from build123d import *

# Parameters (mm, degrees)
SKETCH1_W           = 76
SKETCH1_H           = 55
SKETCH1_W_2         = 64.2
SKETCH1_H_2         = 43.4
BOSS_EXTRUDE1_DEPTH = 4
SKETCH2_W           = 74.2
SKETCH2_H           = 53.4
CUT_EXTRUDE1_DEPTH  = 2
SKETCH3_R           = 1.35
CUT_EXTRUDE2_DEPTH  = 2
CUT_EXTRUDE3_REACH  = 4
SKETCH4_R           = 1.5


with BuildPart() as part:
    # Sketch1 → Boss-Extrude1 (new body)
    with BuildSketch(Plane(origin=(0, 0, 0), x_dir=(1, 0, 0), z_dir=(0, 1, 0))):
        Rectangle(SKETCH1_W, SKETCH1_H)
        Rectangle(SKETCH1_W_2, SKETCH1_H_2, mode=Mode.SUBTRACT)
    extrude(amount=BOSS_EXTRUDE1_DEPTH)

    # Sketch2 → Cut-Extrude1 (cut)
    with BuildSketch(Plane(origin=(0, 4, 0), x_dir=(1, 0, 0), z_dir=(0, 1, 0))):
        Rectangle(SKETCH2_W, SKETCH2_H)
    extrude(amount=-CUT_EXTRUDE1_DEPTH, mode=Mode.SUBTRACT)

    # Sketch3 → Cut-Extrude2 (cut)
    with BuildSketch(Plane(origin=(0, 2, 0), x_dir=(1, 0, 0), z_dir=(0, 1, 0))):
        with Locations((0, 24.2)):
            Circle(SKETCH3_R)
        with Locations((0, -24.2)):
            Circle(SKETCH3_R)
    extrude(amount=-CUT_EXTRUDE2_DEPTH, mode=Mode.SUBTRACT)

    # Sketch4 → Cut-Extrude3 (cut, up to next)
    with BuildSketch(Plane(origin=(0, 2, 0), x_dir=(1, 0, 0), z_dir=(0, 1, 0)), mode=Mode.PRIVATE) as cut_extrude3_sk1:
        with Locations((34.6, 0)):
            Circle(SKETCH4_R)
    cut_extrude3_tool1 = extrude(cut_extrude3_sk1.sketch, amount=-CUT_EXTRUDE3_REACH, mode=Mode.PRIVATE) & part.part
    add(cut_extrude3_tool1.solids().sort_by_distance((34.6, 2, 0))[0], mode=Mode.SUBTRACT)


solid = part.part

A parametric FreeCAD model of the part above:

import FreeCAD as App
import Part
import Sketcher

V = App.Vector


def add_polygon(sketch, points):
    """Adds a closed chain of lines whose ends are joined by coincident constraints."""
    first, n = sketch.GeometryCount, len(points)
    for a, b in zip(points, points[1:] + points[:1]):
        sketch.addGeometry(Part.LineSegment(App.Vector(*a, 0), App.Vector(*b, 0)), False)
    for i in range(n):
        sketch.addConstraint(Sketcher.Constraint("Coincident", first + i, 2, first + (i + 1) % n, 1))

doc = App.newDocument("Part")
body = doc.addObject("PartDesign::Body", "Body")

sketch1 = body.newObject("Sketcher::SketchObject", "Sketch")
sketch1.AttachmentSupport = (doc.getObject("XZ_Plane"), [""])
sketch1.MapMode = "FlatFace"
add_polygon(sketch1, [(-38, -28), (-38, 28), (38, 28), (38, -28)])
add_polygon(sketch1, [(32, 22), (-32, 22), (-32, -22), (32, -22)])
sketch1.addConstraint([
    Sketcher.Constraint("Vertical", 0),
    Sketcher.Constraint("Horizontal", 1),
    Sketcher.Constraint("Vertical", 2),
    Sketcher.Constraint("Horizontal", 3),
    Sketcher.Constraint("Horizontal", 4),
    Sketcher.Constraint("Vertical", 5),
    Sketcher.Constraint("Horizontal", 6),
    Sketcher.Constraint("Vertical", 7),
    Sketcher.Constraint("Symmetric", 0, 2, 2, 2, -1, 1),
    Sketcher.Constraint("Symmetric", 4, 2, 6, 2, -1, 1),
    Sketcher.Constraint("DistanceX", 1, 1, 1, 2, 76.0),
    Sketcher.Constraint("DistanceY", 0, 1, 0, 2, 55.0),
    Sketcher.Constraint("DistanceX", 4, 2, 4, 1, 64.2),
    Sketcher.Constraint("DistanceY", 5, 2, 5, 1, 43.4),
])
pad1 = body.newObject("PartDesign::Pad", "Pad")
pad1.Profile = sketch1
pad1.Length = 4
pad1.Reversed = True

sketch2 = body.newObject("Sketcher::SketchObject", "Sketch001")
sketch2.AttachmentSupport = (doc.getObject("XZ_Plane"), [""])
sketch2.MapMode = "FlatFace"
sketch2.AttachmentOffset = App.Placement(V(0, 0, -4), App.Rotation())
add_polygon(sketch2, [(-37, -27), (-37, 27), (37, 27), (37, -27)])
sketch2.addConstraint([
    Sketcher.Constraint("Vertical", 0),
    Sketcher.Constraint("Horizontal", 1),
    Sketcher.Constraint("Vertical", 2),
    Sketcher.Constraint("Horizontal", 3),
    Sketcher.Constraint("Symmetric", 0, 2, 2, 2, -1, 1),
    Sketcher.Constraint("DistanceX", 1, 1, 1, 2, 74.2),
    Sketcher.Constraint("DistanceY", 0, 1, 0, 2, 53.4),
])
pocket1 = body.newObject("PartDesign::Pocket", "Pocket")
pocket1.Profile = sketch2
pocket1.Length = 2
pocket1.Reversed = True

sketch3 = body.newObject("Sketcher::SketchObject", "Sketch002")
sketch3.AttachmentSupport = (doc.getObject("XZ_Plane"), [""])
sketch3.MapMode = "FlatFace"
sketch3.AttachmentOffset = App.Placement(V(0, 0, -2), App.Rotation())
sketch3.addGeometry([
    Part.Circle(V(0, -24.2, 0), V(0, 0, 1), 1.4),
    Part.Circle(V(0, 24.2, 0), V(0, 0, 1), 1.4),
], False)
sketch3.addConstraint([
    Sketcher.Constraint("Equal", 0, 1),
    Sketcher.Constraint("Symmetric", 0, 3, 1, 3, -1, 1),
    Sketcher.Constraint("PointOnObject", 0, 3, -2),
    Sketcher.Constraint("Diameter", 0, 2.7),
    Sketcher.Constraint("DistanceY", 0, 3, -1, 1, 24.2),
])
pocket2 = body.newObject("PartDesign::Pocket", "Pocket001")
pocket2.Profile = sketch3
pocket2.Length = 2
pocket2.Reversed = True

sketch4 = body.newObject("Sketcher::SketchObject", "Sketch003")
sketch4.AttachmentSupport = (doc.getObject("XZ_Plane"), [""])
sketch4.MapMode = "FlatFace"
sketch4.AttachmentOffset = App.Placement(V(0, 0, -2), App.Rotation())
sketch4.addGeometry(Part.Circle(V(34.6, 0, 0), V(0, 0, 1), 1.5), False)
sketch4.addConstraint([
    Sketcher.Constraint("PointOnObject", 0, 3, -1),
    Sketcher.Constraint("Diameter", 0, 3.0),
    Sketcher.Constraint("DistanceX", -1, 1, 0, 3, 34.6),
])
pocket3 = body.newObject("PartDesign::Pocket", "Pocket002")
pocket3.Profile = sketch4
pocket3.Type = "UpToFirst"
pocket3.Reversed = True

doc.recompute()
